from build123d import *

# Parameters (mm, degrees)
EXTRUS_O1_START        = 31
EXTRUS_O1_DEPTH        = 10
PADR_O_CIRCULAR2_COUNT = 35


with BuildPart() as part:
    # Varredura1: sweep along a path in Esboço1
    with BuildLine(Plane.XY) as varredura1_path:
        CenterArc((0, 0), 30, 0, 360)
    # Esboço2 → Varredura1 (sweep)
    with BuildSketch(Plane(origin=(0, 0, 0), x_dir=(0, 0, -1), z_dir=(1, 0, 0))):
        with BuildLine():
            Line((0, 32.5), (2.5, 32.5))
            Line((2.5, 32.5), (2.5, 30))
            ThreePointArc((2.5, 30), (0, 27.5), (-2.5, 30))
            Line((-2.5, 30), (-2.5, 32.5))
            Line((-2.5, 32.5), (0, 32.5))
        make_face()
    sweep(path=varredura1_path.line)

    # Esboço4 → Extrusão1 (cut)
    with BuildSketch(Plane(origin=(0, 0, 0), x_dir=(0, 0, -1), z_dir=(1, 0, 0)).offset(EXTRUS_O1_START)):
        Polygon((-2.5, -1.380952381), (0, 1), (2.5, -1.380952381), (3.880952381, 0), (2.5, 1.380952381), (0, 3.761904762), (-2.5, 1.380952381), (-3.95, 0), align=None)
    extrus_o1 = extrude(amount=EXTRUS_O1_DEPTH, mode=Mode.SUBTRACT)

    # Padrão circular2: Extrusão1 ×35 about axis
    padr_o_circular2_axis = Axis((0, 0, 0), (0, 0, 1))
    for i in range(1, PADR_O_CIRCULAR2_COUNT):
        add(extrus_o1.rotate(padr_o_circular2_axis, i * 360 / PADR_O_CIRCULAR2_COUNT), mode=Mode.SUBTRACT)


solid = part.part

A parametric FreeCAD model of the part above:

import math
import FreeCAD as App
import Part
import Sketcher
Q = App.Units.Quantity


def add_polygon(sketch, points):
    """Adds a closed chain of lines whose ends are joined by coincident constraints."""
    first, n = sketch.GeometryCount, len(points)
    for a, b in zip(points, points[1:] + points[:1]):
        sketch.addGeometry(Part.LineSegment(App.Vector(*a, 0), App.Vector(*b, 0)), False)
    for i in range(n):
        sketch.addConstraint(Sketcher.Constraint("Coincident", first + i, 2, first + (i + 1) % n, 1))

doc = App.newDocument("Part")
params = doc.addObject("Spreadsheet::Sheet", "Params")
for row, (alias, value) in enumerate([
    ("sketch1_radius", "2.5 mm"),
    ("sketch1_width", "2.5 mm"),
    ("sketch2_diameter", "60 mm"),
    ("pocket1_length", "10 mm"),
], start=1):
    params.set(f"A{row}", alias)
    params.set(f"B{row}", "=" + value)
    params.setAlias(f"B{row}", alias)

body = doc.addObject("PartDesign::Body", "Body")

# Sketch on YZ plane
sketch1 = body.newObject("Sketcher::SketchObject", "Sketch")
sketch1.AttachmentSupport = (doc.getObject("YZ_Plane"), [""])
sketch1.MapMode = "FlatFace"
sketch1.addGeometry(Part.LineSegment(App.Vector(30, -2.5, 0), App.Vector(32.5, -2.5, 0)), False)
sketch1.addGeometry(Part.LineSegment(App.Vector(32.5, -2.5, 0), App.Vector(32.5, 2.5, 0)), False)
sketch1.addGeometry(Part.LineSegment(App.Vector(32.5, 2.5, 0), App.Vector(30, 2.5, 0)), False)
sketch1.addGeometry(Part.ArcOfCircle(Part.Circle(App.Vector(30, 0, 0), App.Vector(0, 0, 1), 2.5), math.radians(90), math.radians(270)), False)
sketch1.addConstraint(Sketcher.Constraint("Coincident", 0, 2, 1, 1))
sketch1.addConstraint(Sketcher.Constraint("Coincident", 1, 2, 2, 1))
sketch1.addConstraint(Sketcher.Constraint("Tangent", 2, 2, 3, 1))
sketch1.addConstraint(Sketcher.Constraint("Tangent", 3, 2, 0, 1))
sketch1.addConstraint(Sketcher.Constraint("Horizontal", 0))
sketch1.addConstraint(Sketcher.Constraint("Vertical", 1))
sketch1.addConstraint(Sketcher.Constraint("Horizontal", 2))
sketch1.addConstraint(Sketcher.Constraint("PointOnObject", 3, 3, -1))
sketch1.addConstraint(Sketcher.Constraint("Radius", 3, Q("2.5 mm")))
sketch1.addConstraint(Sketcher.Constraint("DistanceX", 0, 1, 0, 2, Q("2.5 mm")))
sketch1.addConstraint(Sketcher.Constraint("DistanceX", -1, 1, 3, 3, Q("30 mm")))
sketch1.setExpression("Constraints[8]", "Params.sketch1_radius")
sketch1.setExpression("Constraints[9]", "Params.sketch1_width")

# Sketch on XY plane
sketch2 = body.newObject("Sketcher::SketchObject", "Sketch001")
sketch2.AttachmentSupport = (doc.getObject("XY_Plane"), [""])
sketch2.MapMode = "FlatFace"
sketch2.addGeometry(Part.Circle(App.Vector(0, 0, 0), App.Vector(0, 0, 1), 30), False)
sketch2.addConstraint(Sketcher.Constraint("Coincident", 0, 3, -1, 1))
sketch2.addConstraint(Sketcher.Constraint("Diameter", 0, Q("60 mm")))
sketch2.setExpression("Constraints[1]", "Params.sketch2_diameter")
doc.recompute()

additivepipe = body.newObject("PartDesign::AdditivePipe", "AdditivePipe")
additivepipe.Profile = sketch1
additivepipe.Spine = (sketch2, ["Edge1"])

# Sketch on YZ plane
sketch3 = body.newObject("Sketcher::SketchObject", "Sketch002")
sketch3.AttachmentSupport = (doc.getObject("YZ_Plane"), [""])
sketch3.MapMode = "FlatFace"
sketch3.AttachmentOffset = App.Placement(App.Vector(0, 0, 31), App.Rotation())
add_polygon(sketch3, [(-1.4, 2.5), (1, 0), (-1.4, -2.5), (0, -3.9), (1.4, -2.5), (3.8, 0), (1.4, 2.5), (0, 4)])  # lines 0-7
sketch3.addConstraint(Sketcher.Constraint("Symmetric", 1, 2, 5, 2, -1, 1))
sketch3.addConstraint(Sketcher.Constraint("Symmetric", 3, 2, 7, 2, -1, 1))
sketch3.addConstraint(Sketcher.Constraint("Symmetric", 1, 2, 3, 2, -2))
sketch3.addConstraint(Sketcher.Constraint("PointOnObject", 0, 2, -1))
sketch3.addConstraint(Sketcher.Constraint("PointOnObject", 2, 2, -2))
sketch3.addConstraint(Sketcher.Constraint("PointOnObject", 4, 2, -1))
sketch3.addConstraint(Sketcher.Constraint("PointOnObject", 6, 2, -2))
sketch3.addConstraint(Sketcher.Constraint("Perpendicular", 2, 3))
sketch3.addConstraint(Sketcher.Constraint("Parallel", 1, 4))
sketch3.addConstraint(Sketcher.Constraint("Parallel", 5, 6))
sketch3.addConstraint(Sketcher.Constraint("DistanceX", -1, 1, 0, 2, Q("1 mm")))
sketch3.addConstraint(Sketcher.Constraint("DistanceY", 3, 2, 5, 2, Q("5 mm")))
sketch3.addConstraint(Sketcher.Constraint("DistanceY", -1, 1, 6, 2, Q("3.95 mm")))
pocket1 = body.newObject("PartDesign::Pocket", "Pocket")
pocket1.Profile = sketch3
pocket1.setExpression("Length", "Params.pocket1_length")
pocket1.Reversed = True
doc.recompute()

polarpattern = body.newObject("PartDesign::PolarPattern", "PolarPattern")
polarpattern.Originals = [pocket1]
polarpattern.Axis = (doc.getObject("Z_Axis"), [""])
polarpattern.Angle = 360
polarpattern.Occurrences = 35
body.Tip = polarpattern

doc.recompute()
